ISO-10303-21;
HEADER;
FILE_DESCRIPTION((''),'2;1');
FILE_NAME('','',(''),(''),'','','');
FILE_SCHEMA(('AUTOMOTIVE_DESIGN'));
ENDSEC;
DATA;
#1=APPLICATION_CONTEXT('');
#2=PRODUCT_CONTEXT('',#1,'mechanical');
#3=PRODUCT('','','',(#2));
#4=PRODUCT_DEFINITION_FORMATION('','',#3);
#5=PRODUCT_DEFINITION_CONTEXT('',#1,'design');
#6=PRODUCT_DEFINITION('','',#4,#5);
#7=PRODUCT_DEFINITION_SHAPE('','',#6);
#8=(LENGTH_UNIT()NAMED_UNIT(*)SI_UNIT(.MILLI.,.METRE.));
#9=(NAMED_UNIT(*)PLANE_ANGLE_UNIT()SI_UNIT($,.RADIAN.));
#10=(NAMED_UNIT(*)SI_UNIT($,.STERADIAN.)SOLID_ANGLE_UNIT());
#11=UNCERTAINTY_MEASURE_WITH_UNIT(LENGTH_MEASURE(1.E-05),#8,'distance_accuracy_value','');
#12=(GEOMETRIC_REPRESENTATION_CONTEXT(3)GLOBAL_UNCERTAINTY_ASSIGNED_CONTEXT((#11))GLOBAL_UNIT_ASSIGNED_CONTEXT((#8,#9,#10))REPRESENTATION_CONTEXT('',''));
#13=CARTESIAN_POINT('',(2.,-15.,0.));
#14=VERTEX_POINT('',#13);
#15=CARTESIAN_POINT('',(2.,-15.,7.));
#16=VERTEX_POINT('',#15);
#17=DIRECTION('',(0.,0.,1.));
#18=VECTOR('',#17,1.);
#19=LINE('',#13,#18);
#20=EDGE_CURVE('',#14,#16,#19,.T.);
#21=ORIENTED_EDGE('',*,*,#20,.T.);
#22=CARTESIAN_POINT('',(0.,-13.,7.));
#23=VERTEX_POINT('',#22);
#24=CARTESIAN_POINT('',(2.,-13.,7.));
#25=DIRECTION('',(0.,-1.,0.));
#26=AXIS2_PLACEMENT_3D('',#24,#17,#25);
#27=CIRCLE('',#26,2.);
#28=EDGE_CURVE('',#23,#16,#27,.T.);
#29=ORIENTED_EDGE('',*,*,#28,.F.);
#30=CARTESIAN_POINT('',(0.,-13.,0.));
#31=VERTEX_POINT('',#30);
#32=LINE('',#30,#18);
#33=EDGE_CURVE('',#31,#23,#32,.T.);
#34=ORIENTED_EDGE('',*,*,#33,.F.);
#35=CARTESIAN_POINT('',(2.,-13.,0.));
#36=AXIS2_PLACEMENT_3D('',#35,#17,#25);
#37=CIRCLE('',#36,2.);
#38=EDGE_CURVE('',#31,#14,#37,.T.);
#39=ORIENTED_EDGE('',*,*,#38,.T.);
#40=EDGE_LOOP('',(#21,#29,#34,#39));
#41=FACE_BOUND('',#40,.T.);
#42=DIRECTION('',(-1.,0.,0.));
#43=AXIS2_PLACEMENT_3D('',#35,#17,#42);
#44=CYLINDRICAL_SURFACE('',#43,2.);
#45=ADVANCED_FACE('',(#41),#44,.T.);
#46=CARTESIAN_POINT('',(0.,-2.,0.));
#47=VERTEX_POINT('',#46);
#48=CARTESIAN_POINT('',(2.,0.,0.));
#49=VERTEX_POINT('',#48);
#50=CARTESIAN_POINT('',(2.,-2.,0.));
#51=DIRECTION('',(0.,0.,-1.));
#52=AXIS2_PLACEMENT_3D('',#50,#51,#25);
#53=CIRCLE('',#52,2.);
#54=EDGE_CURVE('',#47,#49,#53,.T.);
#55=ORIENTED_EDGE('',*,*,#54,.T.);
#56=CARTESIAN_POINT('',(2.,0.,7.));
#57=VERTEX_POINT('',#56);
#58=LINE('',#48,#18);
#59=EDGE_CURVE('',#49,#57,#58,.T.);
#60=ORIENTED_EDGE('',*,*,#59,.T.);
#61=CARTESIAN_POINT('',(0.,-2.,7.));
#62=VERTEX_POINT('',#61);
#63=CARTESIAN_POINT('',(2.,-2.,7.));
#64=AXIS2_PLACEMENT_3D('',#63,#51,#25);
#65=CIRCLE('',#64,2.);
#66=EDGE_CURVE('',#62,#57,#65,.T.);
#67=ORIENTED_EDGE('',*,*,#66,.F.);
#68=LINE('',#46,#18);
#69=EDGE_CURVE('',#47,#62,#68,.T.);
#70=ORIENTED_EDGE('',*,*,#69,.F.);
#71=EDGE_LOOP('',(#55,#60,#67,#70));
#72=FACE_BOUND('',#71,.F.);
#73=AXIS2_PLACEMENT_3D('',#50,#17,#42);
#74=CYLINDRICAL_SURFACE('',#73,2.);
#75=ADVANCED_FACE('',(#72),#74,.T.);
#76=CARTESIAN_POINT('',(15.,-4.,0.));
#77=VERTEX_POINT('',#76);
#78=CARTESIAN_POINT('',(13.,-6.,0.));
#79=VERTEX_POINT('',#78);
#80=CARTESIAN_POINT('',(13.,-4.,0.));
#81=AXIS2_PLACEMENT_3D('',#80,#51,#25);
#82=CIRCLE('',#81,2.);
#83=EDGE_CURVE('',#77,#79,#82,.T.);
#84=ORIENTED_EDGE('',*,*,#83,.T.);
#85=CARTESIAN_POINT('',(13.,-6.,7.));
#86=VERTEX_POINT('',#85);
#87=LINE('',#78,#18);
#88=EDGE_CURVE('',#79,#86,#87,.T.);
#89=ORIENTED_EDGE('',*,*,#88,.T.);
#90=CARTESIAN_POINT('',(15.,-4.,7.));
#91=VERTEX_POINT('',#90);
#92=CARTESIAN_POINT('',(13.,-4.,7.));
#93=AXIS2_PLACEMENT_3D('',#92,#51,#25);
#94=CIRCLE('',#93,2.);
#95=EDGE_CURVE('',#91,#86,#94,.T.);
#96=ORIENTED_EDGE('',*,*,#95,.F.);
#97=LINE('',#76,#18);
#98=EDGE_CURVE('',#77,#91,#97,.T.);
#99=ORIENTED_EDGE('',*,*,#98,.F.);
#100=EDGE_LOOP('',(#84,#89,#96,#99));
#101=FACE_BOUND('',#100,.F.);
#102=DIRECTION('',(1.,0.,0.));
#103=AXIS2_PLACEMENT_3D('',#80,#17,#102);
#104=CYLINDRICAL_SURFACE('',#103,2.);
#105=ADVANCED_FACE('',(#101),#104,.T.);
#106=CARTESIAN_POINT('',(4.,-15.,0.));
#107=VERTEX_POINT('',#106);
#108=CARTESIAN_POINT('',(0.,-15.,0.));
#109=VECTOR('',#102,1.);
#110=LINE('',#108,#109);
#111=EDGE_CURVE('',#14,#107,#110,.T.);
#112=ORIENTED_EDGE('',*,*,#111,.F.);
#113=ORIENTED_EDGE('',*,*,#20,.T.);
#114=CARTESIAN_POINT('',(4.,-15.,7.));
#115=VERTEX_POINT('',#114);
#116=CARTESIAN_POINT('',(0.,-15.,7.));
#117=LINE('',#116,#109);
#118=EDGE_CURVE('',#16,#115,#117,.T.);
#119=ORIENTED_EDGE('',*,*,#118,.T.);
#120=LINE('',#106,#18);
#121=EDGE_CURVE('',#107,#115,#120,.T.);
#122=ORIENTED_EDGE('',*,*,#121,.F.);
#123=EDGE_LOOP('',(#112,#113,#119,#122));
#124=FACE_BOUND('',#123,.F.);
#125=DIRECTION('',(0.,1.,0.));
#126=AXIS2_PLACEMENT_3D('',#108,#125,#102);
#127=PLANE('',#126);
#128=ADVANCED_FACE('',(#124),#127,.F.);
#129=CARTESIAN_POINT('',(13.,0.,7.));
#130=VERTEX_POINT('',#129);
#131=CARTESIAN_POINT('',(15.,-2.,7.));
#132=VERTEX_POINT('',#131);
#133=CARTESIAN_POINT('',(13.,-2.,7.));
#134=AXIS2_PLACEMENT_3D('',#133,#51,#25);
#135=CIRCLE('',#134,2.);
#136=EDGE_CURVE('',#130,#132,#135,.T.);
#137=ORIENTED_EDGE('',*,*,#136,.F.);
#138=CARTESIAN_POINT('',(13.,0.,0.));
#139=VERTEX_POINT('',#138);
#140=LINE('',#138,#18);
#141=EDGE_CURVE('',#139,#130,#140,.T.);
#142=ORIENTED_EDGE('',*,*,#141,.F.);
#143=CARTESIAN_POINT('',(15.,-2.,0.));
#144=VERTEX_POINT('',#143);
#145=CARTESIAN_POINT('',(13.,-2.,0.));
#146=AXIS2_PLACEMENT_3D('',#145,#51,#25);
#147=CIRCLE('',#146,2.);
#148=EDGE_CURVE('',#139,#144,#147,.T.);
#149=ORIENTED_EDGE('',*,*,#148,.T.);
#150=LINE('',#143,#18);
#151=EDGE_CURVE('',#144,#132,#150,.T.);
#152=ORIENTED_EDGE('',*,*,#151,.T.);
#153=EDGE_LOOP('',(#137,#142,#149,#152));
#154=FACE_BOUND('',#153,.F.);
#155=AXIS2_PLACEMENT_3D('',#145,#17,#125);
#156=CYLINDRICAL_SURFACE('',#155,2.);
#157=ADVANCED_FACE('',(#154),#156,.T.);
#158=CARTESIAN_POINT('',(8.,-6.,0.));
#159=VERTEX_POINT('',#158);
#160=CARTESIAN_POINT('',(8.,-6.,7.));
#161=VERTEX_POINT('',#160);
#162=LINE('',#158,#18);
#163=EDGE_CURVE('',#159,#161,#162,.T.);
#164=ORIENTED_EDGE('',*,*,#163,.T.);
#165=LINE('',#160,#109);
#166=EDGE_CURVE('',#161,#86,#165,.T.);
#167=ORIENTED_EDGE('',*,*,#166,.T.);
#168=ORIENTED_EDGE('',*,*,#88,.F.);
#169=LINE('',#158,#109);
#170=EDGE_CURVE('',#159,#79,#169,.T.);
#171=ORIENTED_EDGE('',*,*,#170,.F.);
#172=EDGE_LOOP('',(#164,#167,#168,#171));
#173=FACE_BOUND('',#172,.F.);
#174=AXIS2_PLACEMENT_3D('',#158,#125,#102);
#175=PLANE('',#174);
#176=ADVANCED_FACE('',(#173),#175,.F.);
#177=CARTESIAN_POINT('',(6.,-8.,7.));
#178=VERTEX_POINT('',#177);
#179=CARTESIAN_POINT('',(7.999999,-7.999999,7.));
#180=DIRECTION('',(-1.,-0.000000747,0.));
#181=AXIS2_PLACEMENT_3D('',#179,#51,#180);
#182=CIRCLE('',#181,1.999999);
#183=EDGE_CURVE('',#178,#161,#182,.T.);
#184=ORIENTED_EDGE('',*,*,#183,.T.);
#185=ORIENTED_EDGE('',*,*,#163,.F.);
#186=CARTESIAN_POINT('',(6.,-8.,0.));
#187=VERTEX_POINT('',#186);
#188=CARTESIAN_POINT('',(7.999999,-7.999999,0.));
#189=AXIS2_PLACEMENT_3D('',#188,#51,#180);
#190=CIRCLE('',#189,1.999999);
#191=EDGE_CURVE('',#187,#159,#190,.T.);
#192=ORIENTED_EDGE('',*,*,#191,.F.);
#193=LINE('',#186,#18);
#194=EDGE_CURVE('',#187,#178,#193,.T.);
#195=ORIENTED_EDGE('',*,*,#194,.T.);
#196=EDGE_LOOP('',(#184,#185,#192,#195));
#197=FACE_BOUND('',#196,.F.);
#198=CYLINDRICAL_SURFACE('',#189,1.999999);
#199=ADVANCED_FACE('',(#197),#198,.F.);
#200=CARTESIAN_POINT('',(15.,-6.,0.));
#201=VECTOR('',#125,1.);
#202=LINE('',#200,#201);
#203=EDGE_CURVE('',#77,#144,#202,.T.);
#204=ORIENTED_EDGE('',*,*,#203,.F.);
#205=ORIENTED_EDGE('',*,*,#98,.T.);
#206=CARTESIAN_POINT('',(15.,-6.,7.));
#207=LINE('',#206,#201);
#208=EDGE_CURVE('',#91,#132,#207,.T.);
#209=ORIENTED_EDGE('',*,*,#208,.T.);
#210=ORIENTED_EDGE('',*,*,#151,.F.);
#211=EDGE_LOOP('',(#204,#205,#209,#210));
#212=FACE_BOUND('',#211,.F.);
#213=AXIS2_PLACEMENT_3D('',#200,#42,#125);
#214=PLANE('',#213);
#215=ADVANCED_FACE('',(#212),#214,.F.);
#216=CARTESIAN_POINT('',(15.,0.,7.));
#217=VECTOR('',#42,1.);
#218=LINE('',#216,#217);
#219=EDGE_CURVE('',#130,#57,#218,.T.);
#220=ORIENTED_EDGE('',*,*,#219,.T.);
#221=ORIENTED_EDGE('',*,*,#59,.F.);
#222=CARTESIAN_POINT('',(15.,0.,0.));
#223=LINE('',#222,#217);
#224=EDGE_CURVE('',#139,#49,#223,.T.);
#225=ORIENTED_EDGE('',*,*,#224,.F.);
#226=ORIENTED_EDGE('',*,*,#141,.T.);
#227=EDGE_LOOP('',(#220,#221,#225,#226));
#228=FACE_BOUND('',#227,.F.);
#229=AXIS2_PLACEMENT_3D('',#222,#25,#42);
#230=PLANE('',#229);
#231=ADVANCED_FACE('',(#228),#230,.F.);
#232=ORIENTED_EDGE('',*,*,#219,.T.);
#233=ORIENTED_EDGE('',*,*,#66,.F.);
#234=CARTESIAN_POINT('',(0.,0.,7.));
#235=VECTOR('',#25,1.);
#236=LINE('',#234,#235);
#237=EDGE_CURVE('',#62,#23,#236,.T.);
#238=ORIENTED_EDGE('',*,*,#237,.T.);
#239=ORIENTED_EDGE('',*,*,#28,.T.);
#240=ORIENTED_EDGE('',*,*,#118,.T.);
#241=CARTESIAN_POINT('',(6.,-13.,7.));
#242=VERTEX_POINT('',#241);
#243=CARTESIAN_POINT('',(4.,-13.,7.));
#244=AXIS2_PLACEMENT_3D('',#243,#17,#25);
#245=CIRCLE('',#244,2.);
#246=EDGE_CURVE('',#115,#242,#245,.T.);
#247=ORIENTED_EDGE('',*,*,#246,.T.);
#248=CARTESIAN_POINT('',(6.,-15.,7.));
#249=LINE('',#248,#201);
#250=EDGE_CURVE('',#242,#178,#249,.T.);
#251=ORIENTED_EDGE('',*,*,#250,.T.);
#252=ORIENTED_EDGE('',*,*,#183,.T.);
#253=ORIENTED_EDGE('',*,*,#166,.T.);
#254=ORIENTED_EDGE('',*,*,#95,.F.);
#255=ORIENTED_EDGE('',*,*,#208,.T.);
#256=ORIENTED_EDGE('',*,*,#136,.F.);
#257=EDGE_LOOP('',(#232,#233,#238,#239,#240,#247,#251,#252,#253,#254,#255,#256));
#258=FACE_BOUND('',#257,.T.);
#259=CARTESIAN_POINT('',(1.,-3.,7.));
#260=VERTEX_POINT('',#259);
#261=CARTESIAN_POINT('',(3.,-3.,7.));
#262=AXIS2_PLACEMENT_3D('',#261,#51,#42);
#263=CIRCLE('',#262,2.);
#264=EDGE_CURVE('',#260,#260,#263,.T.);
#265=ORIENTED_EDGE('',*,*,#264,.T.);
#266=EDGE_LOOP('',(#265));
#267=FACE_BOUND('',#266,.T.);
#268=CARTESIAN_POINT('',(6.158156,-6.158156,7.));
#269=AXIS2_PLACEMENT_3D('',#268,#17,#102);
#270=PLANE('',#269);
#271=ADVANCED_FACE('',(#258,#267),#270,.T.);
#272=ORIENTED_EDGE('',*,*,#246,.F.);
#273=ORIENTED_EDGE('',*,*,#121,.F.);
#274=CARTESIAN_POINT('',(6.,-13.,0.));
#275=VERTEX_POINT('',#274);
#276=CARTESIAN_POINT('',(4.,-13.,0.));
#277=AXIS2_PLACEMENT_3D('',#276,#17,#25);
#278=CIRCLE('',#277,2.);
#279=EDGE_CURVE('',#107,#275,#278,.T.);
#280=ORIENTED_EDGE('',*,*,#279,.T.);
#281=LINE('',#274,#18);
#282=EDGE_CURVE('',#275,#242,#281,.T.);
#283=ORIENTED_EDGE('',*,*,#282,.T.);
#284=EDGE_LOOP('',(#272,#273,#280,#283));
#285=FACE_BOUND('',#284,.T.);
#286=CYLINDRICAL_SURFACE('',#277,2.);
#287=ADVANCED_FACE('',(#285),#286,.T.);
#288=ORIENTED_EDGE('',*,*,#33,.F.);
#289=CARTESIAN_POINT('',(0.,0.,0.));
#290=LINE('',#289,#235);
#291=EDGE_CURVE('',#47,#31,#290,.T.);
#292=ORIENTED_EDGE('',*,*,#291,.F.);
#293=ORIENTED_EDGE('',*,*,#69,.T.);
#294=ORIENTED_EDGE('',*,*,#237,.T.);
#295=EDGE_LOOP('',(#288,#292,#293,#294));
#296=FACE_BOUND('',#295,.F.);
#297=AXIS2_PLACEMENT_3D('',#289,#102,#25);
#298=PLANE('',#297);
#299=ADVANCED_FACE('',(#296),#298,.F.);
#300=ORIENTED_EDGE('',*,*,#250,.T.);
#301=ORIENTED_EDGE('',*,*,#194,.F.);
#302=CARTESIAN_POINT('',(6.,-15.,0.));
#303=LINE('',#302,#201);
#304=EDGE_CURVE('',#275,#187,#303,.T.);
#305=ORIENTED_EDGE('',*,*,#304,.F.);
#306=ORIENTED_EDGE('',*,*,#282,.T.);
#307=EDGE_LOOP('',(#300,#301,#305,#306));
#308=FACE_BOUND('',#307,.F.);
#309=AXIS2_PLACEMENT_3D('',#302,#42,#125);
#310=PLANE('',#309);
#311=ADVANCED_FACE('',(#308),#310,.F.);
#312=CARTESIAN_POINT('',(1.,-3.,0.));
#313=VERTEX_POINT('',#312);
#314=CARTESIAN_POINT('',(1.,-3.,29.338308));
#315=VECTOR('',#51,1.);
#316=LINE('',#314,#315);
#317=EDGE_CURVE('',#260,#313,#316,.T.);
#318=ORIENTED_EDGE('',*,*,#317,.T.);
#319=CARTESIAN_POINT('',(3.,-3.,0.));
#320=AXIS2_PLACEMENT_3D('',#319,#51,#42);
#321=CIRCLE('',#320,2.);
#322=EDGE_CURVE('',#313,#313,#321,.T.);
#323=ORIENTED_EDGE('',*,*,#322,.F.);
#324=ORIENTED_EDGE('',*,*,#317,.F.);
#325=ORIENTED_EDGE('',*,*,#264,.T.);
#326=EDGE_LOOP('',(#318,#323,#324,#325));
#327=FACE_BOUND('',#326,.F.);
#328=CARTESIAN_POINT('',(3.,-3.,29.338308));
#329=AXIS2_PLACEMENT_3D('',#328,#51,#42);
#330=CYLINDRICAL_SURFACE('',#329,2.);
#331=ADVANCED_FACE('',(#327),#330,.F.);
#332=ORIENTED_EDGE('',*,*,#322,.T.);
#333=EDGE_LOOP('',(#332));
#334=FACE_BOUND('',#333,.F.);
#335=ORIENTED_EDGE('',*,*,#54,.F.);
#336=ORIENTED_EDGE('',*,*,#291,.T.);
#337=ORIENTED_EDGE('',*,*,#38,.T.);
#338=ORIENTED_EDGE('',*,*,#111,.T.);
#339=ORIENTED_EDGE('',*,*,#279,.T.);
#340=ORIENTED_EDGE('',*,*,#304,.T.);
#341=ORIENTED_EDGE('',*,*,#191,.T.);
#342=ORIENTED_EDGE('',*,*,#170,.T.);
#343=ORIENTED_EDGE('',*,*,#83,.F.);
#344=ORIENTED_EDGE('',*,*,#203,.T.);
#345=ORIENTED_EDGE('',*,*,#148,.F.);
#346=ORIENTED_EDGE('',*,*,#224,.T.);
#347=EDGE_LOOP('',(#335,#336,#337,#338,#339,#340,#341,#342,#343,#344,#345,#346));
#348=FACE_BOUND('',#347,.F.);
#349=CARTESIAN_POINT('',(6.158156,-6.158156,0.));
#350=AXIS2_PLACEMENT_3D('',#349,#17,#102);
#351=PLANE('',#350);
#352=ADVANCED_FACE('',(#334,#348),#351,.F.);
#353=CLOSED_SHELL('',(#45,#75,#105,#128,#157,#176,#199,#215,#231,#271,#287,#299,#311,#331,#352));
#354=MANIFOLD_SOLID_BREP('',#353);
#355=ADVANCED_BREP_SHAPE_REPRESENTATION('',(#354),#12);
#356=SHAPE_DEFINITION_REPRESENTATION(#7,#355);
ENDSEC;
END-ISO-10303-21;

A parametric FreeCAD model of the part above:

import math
import FreeCAD as App
import Part
import Sketcher

V = App.Vector


def edges_at(feature, points):
    """Names of the edges that pass closest to the given points."""
    edges = feature.Shape.Edges
    near = lambda p: min(range(len(edges)), key=lambda i: edges[i].distToShape(Part.Vertex(*p))[0])
    return sorted({f"Edge{near(p) + 1}" for p in points})

doc = App.newDocument("Part")
params = doc.addObject("Spreadsheet::Sheet", "Params")
for row, (alias, value) in enumerate([
    ("sketch1_radius", "1.999999 mm"),
    ("sketch1_width", "6 mm"),
    ("sketch1_width2", "7 mm"),
    ("pad1_length", "7 mm"),
    ("sketch2_diameter", "4 mm"),
    ("hole_diameter", "4 mm"),
    ("fillet_radius", "2 mm"),
], start=1):
    params.set(f"A{row}", alias)
    params.set(f"B{row}", "=" + value)
    params.setAlias(f"B{row}", alias)

body = doc.addObject("PartDesign::Body", "Body")

# Sketch on XY plane
sketch1 = body.newObject("Sketcher::SketchObject", "Sketch")
sketch1.AttachmentSupport = (doc.getObject("XY_Plane"), [""])
sketch1.MapMode = "FlatFace"
sketch1.addGeometry([
    Part.LineSegment(V(0, 0, 0), V(0, -15, 0)),  # 0
    Part.LineSegment(V(0, -15, 0), V(6, -15, 0)),  # 1
    Part.LineSegment(V(6, -15, 0), V(6, -8, 0)),  # 2
    Part.ArcOfCircle(Part.Circle(V(7.999999, -7.999999, 0), V(0, 0, 1), 1.999999), math.radians(89.999957), math.radians(180.000043)),  # 3
    Part.LineSegment(V(8, -6, 0), V(15, -6, 0)),  # 4
    Part.LineSegment(V(15, -6, 0), V(15, 0, 0)),  # 5
    Part.LineSegment(V(15, 0, 0), V(0, 0, 0)),  # 6
], False)
sketch1.addConstraint([
    Sketcher.Constraint("Coincident", 0, 2, 1, 1),
    Sketcher.Constraint("Coincident", 1, 2, 2, 1),
    Sketcher.Constraint("Tangent", 2, 2, 3, 2),
    Sketcher.Constraint("Tangent", 3, 1, 4, 1),
    Sketcher.Constraint("Coincident", 4, 2, 5, 1),
    Sketcher.Constraint("Coincident", 5, 2, 6, 1),
    Sketcher.Constraint("Coincident", 6, 2, 0, 1),
    Sketcher.Constraint("Vertical", 0),
    Sketcher.Constraint("Horizontal", 1),
    Sketcher.Constraint("Vertical", 2),
    Sketcher.Constraint("Horizontal", 4),
    Sketcher.Constraint("Vertical", 5),
    Sketcher.Constraint("Horizontal", 6),
    Sketcher.Constraint("Coincident", 6, 2, -1, 1),
    Sketcher.Constraint("Equal", 6, 0),
    Sketcher.Constraint("Equal", 4, 2),
    Sketcher.Constraint("Radius", 3, 1.999999),
    Sketcher.Constraint("DistanceX", 1, 1, 1, 2, 6.0),
    Sketcher.Constraint("DistanceX", 4, 1, 4, 2, 7.0),
])
sketch1.setExpression("Constraints[16]", "Params.sketch1_radius")
sketch1.setExpression("Constraints[17]", "Params.sketch1_width")
sketch1.setExpression("Constraints[18]", "Params.sketch1_width2")
pad1 = body.newObject("PartDesign::Pad", "Pad")
pad1.Profile = sketch1
pad1.setExpression("Length", "Params.pad1_length")

# Sketch on XY plane
sketch2 = body.newObject("Sketcher::SketchObject", "Sketch001")
sketch2.AttachmentSupport = (doc.getObject("XY_Plane"), [""])
sketch2.MapMode = "FlatFace"
sketch2.AttachmentOffset = App.Placement(V(0, 0, 7), App.Rotation())
sketch2.addGeometry(Part.Circle(V(3, -3, 0), V(0, 0, 1), 2), False)
sketch2.addConstraint([
    Sketcher.Constraint("Diameter", 0, 4.0),
    Sketcher.Constraint("DistanceX", -1, 1, 0, 3, 3.0),
    Sketcher.Constraint("DistanceY", 0, 3, -1, 1, 3.0),
])
sketch2.setExpression("Constraints[0]", "Params.sketch2_diameter")
doc.recompute()
hole = body.newObject("PartDesign::Hole", "Hole")
hole.Profile = sketch2
hole.ThreadType = "None"
hole.setExpression("Diameter", "Params.hole_diameter")
hole.DepthType = "ThroughAll"
doc.recompute()

fillet = body.newObject("PartDesign::Fillet", "Fillet")
fillet.Base = (hole, edges_at(hole, [
    (0, 0, 3.5),
    (0, -15, 3.5),
    (6, -15, 3.5),
    (15, -6, 3.5),
    (15, 0, 3.5),
]))
fillet.setExpression("Radius", "Params.fillet_radius")

doc.recompute()
